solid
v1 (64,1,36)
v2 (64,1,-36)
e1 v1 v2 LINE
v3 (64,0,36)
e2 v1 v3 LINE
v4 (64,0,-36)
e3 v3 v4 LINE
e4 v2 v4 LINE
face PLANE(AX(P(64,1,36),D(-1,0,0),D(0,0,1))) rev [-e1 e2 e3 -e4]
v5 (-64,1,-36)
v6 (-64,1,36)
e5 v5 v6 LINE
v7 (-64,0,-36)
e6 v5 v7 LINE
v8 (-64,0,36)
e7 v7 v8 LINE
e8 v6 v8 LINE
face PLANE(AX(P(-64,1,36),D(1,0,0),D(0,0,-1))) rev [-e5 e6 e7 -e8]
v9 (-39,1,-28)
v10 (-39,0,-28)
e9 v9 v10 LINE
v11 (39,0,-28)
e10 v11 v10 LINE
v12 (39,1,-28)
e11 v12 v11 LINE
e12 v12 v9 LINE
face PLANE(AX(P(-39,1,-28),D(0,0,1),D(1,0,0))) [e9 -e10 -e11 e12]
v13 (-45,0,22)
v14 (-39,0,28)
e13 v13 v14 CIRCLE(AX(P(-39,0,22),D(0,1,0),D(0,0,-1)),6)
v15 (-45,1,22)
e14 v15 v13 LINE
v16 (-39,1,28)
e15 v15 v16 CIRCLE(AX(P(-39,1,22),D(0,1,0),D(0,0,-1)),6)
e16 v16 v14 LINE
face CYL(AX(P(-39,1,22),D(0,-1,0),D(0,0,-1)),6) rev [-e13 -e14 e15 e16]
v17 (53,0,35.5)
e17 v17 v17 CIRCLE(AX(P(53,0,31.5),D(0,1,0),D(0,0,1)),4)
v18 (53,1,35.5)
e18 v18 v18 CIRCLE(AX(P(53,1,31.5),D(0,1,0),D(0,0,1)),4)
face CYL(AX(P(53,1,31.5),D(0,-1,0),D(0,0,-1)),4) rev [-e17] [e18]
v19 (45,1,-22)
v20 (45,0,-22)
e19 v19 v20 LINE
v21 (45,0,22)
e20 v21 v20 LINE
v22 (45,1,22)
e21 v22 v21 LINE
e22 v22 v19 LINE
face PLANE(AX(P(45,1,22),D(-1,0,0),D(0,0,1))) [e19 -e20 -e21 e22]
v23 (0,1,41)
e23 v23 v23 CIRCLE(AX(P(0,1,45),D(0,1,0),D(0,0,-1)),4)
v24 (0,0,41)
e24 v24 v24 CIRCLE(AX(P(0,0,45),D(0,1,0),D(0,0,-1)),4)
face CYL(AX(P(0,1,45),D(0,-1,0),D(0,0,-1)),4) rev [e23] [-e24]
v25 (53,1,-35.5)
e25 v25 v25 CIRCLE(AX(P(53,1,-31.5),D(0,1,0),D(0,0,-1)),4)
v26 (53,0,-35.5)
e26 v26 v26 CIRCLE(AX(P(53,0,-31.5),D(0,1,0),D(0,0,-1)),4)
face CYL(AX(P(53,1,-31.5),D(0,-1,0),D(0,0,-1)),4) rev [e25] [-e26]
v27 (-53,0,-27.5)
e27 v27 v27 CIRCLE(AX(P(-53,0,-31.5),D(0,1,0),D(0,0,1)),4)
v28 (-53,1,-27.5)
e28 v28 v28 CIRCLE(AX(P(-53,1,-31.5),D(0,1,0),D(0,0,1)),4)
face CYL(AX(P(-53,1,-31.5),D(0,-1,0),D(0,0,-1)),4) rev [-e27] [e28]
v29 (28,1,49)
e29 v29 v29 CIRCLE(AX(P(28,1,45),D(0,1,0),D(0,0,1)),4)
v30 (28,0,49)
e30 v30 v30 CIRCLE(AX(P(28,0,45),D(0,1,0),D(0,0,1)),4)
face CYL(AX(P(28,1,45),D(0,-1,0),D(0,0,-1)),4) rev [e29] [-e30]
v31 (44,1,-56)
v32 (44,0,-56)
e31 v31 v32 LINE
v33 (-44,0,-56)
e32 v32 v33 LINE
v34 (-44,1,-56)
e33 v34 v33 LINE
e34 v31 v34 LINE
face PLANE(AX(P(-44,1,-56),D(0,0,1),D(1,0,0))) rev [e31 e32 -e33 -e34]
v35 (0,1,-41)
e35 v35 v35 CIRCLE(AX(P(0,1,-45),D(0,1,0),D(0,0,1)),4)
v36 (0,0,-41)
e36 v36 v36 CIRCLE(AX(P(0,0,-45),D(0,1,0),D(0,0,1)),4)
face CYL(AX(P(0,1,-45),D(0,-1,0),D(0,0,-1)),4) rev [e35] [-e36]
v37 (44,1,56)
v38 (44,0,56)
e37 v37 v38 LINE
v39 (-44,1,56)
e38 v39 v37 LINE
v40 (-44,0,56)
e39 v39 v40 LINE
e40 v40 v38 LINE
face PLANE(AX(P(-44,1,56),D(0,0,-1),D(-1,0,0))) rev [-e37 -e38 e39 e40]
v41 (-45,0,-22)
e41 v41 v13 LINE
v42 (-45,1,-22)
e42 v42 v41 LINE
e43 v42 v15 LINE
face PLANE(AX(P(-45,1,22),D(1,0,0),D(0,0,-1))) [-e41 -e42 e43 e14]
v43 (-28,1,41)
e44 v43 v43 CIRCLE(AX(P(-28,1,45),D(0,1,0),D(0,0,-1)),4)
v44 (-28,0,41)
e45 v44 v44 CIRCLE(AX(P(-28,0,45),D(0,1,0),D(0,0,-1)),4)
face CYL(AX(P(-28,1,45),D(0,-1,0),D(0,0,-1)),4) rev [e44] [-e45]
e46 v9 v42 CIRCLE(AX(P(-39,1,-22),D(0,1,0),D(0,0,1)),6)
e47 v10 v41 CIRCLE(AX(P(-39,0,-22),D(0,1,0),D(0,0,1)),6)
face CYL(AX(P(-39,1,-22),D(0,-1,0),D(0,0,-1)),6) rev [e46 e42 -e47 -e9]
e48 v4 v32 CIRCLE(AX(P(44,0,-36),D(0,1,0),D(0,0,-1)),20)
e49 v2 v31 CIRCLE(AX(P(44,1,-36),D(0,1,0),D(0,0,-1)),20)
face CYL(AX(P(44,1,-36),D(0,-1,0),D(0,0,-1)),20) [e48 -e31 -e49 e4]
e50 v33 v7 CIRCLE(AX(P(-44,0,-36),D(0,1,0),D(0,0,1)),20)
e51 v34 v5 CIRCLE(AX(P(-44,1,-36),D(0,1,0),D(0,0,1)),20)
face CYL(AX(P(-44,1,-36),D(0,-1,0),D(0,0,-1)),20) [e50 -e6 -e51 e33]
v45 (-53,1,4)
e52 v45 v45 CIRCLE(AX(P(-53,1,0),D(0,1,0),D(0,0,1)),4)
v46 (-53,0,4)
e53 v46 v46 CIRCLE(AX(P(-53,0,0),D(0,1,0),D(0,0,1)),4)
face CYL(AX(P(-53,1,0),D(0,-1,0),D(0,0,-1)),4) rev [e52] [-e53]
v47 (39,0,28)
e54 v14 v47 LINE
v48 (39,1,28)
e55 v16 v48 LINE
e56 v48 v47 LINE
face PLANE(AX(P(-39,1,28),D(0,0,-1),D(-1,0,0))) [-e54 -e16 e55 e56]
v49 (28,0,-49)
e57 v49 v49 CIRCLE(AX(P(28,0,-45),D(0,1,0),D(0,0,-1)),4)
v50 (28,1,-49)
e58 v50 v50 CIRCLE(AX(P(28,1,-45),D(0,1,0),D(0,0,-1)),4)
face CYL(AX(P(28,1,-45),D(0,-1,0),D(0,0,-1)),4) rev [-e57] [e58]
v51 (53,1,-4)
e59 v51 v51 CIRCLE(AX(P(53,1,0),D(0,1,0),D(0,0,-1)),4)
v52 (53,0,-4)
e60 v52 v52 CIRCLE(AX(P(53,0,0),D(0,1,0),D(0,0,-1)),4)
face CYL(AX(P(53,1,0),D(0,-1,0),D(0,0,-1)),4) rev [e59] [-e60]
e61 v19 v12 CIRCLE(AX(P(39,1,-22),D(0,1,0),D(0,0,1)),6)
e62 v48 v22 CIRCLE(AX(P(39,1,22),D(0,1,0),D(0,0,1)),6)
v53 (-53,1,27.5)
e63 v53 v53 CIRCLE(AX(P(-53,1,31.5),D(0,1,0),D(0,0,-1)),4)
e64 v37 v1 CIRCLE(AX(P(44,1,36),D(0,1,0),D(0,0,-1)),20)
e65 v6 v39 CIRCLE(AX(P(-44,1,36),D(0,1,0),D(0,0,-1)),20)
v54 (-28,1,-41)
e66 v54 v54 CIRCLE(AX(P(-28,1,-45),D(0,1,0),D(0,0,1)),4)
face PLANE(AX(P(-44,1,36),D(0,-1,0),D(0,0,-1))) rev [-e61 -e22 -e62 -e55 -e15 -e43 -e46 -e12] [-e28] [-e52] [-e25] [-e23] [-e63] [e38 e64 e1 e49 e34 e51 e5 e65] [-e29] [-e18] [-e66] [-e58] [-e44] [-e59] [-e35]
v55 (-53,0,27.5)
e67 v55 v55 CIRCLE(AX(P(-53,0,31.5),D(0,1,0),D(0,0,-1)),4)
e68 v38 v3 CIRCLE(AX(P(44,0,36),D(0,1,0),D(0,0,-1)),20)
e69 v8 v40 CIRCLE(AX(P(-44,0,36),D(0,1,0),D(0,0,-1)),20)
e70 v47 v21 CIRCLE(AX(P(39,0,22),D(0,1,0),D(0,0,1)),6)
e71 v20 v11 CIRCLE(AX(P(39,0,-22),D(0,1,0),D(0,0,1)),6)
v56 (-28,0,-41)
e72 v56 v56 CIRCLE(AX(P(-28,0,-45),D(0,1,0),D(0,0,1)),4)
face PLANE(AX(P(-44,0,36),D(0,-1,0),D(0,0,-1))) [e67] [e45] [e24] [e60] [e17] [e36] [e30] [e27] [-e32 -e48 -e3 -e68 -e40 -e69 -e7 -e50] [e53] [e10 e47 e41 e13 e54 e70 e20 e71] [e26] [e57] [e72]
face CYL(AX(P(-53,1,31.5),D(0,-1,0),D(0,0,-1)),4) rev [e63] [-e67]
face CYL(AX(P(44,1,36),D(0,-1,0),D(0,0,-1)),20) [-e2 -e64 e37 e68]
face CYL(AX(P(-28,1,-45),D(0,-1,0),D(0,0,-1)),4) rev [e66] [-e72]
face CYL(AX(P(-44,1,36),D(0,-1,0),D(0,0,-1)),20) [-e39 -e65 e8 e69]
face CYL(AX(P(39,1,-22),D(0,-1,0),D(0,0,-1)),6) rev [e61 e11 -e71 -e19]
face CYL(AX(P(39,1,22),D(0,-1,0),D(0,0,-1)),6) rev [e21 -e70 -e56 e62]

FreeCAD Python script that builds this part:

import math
import FreeCAD as App
import Part
import Sketcher
from FreeCAD import Vector

doc = App.newDocument("Part")
body = doc.addObject("PartDesign::Body", "Body")

# Sketch on XZ plane
sketch1 = body.newObject("Sketcher::SketchObject", "Sketch")
sketch1.AttachmentSupport = (doc.getObject("XZ_Plane"), [""])
sketch1.MapMode = "FlatFace"
sketch1.addGeometry(Part.LineSegment(Vector(-44, 56, 0), Vector(44, 56, 0)), False)
sketch1.addGeometry(Part.ArcOfCircle(Part.Circle(Vector(44, 36, 0), Vector(0, 0, 1), 20), math.radians(0), math.radians(90)), False)
sketch1.addGeometry(Part.LineSegment(Vector(64, 36, 0), Vector(64, -36, 0)), False)
sketch1.addGeometry(Part.ArcOfCircle(Part.Circle(Vector(44, -36, 0), Vector(0, 0, 1), 20), math.radians(-90), math.radians(0)), False)
sketch1.addGeometry(Part.LineSegment(Vector(44, -56, 0), Vector(-44, -56, 0)), False)
sketch1.addGeometry(Part.ArcOfCircle(Part.Circle(Vector(-44, -36, 0), Vector(0, 0, 1), 20), math.radians(180), math.radians(270)), False)
sketch1.addGeometry(Part.LineSegment(Vector(-64, -36, 0), Vector(-64, 36, 0)), False)
sketch1.addGeometry(Part.ArcOfCircle(Part.Circle(Vector(-44, 36, 0), Vector(0, 0, 1), 20), math.radians(90), math.radians(180)), False)
sketch1.addGeometry(Part.Circle(Vector(-53, 31.5, 0), Vector(0, 0, 1), 4), False)
sketch1.addGeometry(Part.Circle(Vector(-28, 45, 0), Vector(0, 0, 1), 4), False)
sketch1.addGeometry(Part.Circle(Vector(-53, 0, 0), Vector(0, 0, 1), 4), False)
sketch1.addGeometry(Part.Circle(Vector(0, 45, 0), Vector(0, 0, 1), 4), False)
sketch1.addGeometry(Part.Circle(Vector(28, 45, 0), Vector(0, 0, 1), 4), False)
sketch1.addGeometry(Part.Circle(Vector(53, 31.5, 0), Vector(0, 0, 1), 4), False)
sketch1.addGeometry(Part.LineSegment(Vector(39, 28, 0), Vector(-39, 28, 0)), False)
sketch1.addGeometry(Part.ArcOfCircle(Part.Circle(Vector(-39, 22, 0), Vector(0, 0, 1), 6), math.radians(90), math.radians(180)), False)
sketch1.addGeometry(Part.LineSegment(Vector(-45, 22, 0), Vector(-45, -22, 0)), False)
sketch1.addGeometry(Part.ArcOfCircle(Part.Circle(Vector(-39, -22, 0), Vector(0, 0, 1), 6), math.radians(180), math.radians(270)), False)
sketch1.addGeometry(Part.LineSegment(Vector(-39, -28, 0), Vector(39, -28, 0)), False)
sketch1.addGeometry(Part.ArcOfCircle(Part.Circle(Vector(39, -22, 0), Vector(0, 0, 1), 6), math.radians(-90), math.radians(0)), False)
sketch1.addGeometry(Part.LineSegment(Vector(45, -22, 0), Vector(45, 22, 0)), False)
sketch1.addGeometry(Part.ArcOfCircle(Part.Circle(Vector(39, 22, 0), Vector(0, 0, 1), 6), math.radians(0), math.radians(90)), False)
sketch1.addGeometry(Part.Circle(Vector(53, 0, 0), Vector(0, 0, 1), 4), False)
sketch1.addGeometry(Part.Circle(Vector(-53, -31.5, 0), Vector(0, 0, 1), 4), False)
sketch1.addGeometry(Part.Circle(Vector(-28, -45, 0), Vector(0, 0, 1), 4), False)
sketch1.addGeometry(Part.Circle(Vector(0, -45, 0), Vector(0, 0, 1), 4), False)
sketch1.addGeometry(Part.Circle(Vector(28, -45, 0), Vector(0, 0, 1), 4), False)
sketch1.addGeometry(Part.Circle(Vector(53, -31.5, 0), Vector(0, 0, 1), 4), False)
sketch1.addConstraint(Sketcher.Constraint("Tangent", 0, 2, 1, 2))
sketch1.addConstraint(Sketcher.Constraint("Tangent", 1, 1, 2, 1))
sketch1.addConstraint(Sketcher.Constraint("Tangent", 2, 2, 3, 2))
sketch1.addConstraint(Sketcher.Constraint("Tangent", 3, 1, 4, 1))
sketch1.addConstraint(Sketcher.Constraint("Tangent", 4, 2, 5, 2))
sketch1.addConstraint(Sketcher.Constraint("Tangent", 5, 1, 6, 1))
sketch1.addConstraint(Sketcher.Constraint("Tangent", 6, 2, 7, 2))
sketch1.addConstraint(Sketcher.Constraint("Tangent", 7, 1, 0, 1))
sketch1.addConstraint(Sketcher.Constraint("Tangent", 14, 2, 15, 1))
sketch1.addConstraint(Sketcher.Constraint("Tangent", 15, 2, 16, 1))
sketch1.addConstraint(Sketcher.Constraint("Tangent", 16, 2, 17, 1))
sketch1.addConstraint(Sketcher.Constraint("Tangent", 17, 2, 18, 1))
sketch1.addConstraint(Sketcher.Constraint("Tangent", 18, 2, 19, 1))
sketch1.addConstraint(Sketcher.Constraint("Tangent", 19, 2, 20, 1))
sketch1.addConstraint(Sketcher.Constraint("Tangent", 20, 2, 21, 1))
sketch1.addConstraint(Sketcher.Constraint("Tangent", 21, 2, 14, 1))
sketch1.addConstraint(Sketcher.Constraint("Horizontal", 0))
sketch1.addConstraint(Sketcher.Constraint("Vertical", 2))
sketch1.addConstraint(Sketcher.Constraint("Horizontal", 4))
sketch1.addConstraint(Sketcher.Constraint("Vertical", 6))
sketch1.addConstraint(Sketcher.Constraint("Horizontal", 14))
sketch1.addConstraint(Sketcher.Constraint("Vertical", 16))
sketch1.addConstraint(Sketcher.Constraint("Horizontal", 18))
sketch1.addConstraint(Sketcher.Constraint("Vertical", 20))
sketch1.addConstraint(Sketcher.Constraint("Equal", 1, 3))
sketch1.addConstraint(Sketcher.Constraint("Equal", 3, 5))
sketch1.addConstraint(Sketcher.Constraint("Equal", 5, 7))
sketch1.addConstraint(Sketcher.Constraint("Equal", 8, 9))
sketch1.addConstraint(Sketcher.Constraint("Equal", 9, 10))
sketch1.addConstraint(Sketcher.Constraint("Equal", 10, 11))
sketch1.addConstraint(Sketcher.Constraint("Equal", 11, 12))
sketch1.addConstraint(Sketcher.Constraint("Equal", 12, 13))
sketch1.addConstraint(Sketcher.Constraint("Equal", 15, 17))
sketch1.addConstraint(Sketcher.Constraint("Equal", 17, 19))
sketch1.addConstraint(Sketcher.Constraint("Equal", 19, 21))
sketch1.addConstraint(Sketcher.Constraint("Equal", 13, 22))
sketch1.addConstraint(Sketcher.Constraint("Equal", 22, 23))
sketch1.addConstraint(Sketcher.Constraint("Equal", 23, 24))
sketch1.addConstraint(Sketcher.Constraint("Equal", 24, 25))
sketch1.addConstraint(Sketcher.Constraint("Equal", 25, 26))
sketch1.addConstraint(Sketcher.Constraint("Equal", 26, 27))
sketch1.addConstraint(Sketcher.Constraint("Symmetric", 1, 3, 5, 3, -1, 1))
sketch1.addConstraint(Sketcher.Constraint("Symmetric", 15, 3, 19, 3, -1, 1))
sketch1.addConstraint(Sketcher.Constraint("Symmetric", 10, 3, 22, 3, -1, 1))
sketch1.addConstraint(Sketcher.Constraint("Symmetric", 13, 3, 23, 3, -1, 1))
sketch1.addConstraint(Sketcher.Constraint("Symmetric", 12, 3, 24, 3, -1, 1))
sketch1.addConstraint(Sketcher.Constraint("Symmetric", 11, 3, 25, 3, -1, 1))
sketch1.addConstraint(Sketcher.Constraint("Symmetric", 9, 3, 26, 3, -1, 1))
sketch1.addConstraint(Sketcher.Constraint("Symmetric", 8, 3, 27, 3, -1, 1))
sketch1.addConstraint(Sketcher.Constraint("Symmetric", 9, 3, 12, 3, -2))
sketch1.addConstraint(Sketcher.Constraint("Symmetric", 8, 3, 13, 3, -2))
sketch1.addConstraint(Sketcher.Constraint("PointOnObject", 10, 3, -1))
sketch1.addConstraint(Sketcher.Constraint("PointOnObject", 11, 3, -2))
sketch1.addConstraint(Sketcher.Constraint("Horizontal", 9, 3, 11, 3))
sketch1.addConstraint(Sketcher.Constraint("Vertical", 8, 3, 10, 3))
sketch1.addConstraint(Sketcher.Constraint("Diameter", 8, 8.0))
sketch1.addConstraint(Sketcher.Constraint("Radius", 1, 20.0))
sketch1.addConstraint(Sketcher.Constraint("Radius", 15, 6.0))
sketch1.addConstraint(Sketcher.Constraint("DistanceX", 0, 1, 0, 2, 88.0))
sketch1.addConstraint(Sketcher.Constraint("DistanceX", 14, 2, 14, 1, 78.0))
sketch1.addConstraint(Sketcher.Constraint("DistanceY", 2, 2, 2, 1, 72.0))
sketch1.addConstraint(Sketcher.Constraint("DistanceY", 16, 2, 16, 1, 44.0))
sketch1.addConstraint(Sketcher.Constraint("DistanceX", 8, 3, -1, 1, 53.0))
sketch1.addConstraint(Sketcher.Constraint("DistanceX", 9, 3, -1, 1, 28.0))
sketch1.addConstraint(Sketcher.Constraint("DistanceY", -1, 1, 9, 3, 45.0))
sketch1.addConstraint(Sketcher.Constraint("DistanceY", 23, 3, 8, 3, 63.0))
pad1 = body.newObject("PartDesign::Pad", "Pad")
pad1.Profile = sketch1
pad1.Length = 1
pad1.Reversed = True

doc.recompute()
